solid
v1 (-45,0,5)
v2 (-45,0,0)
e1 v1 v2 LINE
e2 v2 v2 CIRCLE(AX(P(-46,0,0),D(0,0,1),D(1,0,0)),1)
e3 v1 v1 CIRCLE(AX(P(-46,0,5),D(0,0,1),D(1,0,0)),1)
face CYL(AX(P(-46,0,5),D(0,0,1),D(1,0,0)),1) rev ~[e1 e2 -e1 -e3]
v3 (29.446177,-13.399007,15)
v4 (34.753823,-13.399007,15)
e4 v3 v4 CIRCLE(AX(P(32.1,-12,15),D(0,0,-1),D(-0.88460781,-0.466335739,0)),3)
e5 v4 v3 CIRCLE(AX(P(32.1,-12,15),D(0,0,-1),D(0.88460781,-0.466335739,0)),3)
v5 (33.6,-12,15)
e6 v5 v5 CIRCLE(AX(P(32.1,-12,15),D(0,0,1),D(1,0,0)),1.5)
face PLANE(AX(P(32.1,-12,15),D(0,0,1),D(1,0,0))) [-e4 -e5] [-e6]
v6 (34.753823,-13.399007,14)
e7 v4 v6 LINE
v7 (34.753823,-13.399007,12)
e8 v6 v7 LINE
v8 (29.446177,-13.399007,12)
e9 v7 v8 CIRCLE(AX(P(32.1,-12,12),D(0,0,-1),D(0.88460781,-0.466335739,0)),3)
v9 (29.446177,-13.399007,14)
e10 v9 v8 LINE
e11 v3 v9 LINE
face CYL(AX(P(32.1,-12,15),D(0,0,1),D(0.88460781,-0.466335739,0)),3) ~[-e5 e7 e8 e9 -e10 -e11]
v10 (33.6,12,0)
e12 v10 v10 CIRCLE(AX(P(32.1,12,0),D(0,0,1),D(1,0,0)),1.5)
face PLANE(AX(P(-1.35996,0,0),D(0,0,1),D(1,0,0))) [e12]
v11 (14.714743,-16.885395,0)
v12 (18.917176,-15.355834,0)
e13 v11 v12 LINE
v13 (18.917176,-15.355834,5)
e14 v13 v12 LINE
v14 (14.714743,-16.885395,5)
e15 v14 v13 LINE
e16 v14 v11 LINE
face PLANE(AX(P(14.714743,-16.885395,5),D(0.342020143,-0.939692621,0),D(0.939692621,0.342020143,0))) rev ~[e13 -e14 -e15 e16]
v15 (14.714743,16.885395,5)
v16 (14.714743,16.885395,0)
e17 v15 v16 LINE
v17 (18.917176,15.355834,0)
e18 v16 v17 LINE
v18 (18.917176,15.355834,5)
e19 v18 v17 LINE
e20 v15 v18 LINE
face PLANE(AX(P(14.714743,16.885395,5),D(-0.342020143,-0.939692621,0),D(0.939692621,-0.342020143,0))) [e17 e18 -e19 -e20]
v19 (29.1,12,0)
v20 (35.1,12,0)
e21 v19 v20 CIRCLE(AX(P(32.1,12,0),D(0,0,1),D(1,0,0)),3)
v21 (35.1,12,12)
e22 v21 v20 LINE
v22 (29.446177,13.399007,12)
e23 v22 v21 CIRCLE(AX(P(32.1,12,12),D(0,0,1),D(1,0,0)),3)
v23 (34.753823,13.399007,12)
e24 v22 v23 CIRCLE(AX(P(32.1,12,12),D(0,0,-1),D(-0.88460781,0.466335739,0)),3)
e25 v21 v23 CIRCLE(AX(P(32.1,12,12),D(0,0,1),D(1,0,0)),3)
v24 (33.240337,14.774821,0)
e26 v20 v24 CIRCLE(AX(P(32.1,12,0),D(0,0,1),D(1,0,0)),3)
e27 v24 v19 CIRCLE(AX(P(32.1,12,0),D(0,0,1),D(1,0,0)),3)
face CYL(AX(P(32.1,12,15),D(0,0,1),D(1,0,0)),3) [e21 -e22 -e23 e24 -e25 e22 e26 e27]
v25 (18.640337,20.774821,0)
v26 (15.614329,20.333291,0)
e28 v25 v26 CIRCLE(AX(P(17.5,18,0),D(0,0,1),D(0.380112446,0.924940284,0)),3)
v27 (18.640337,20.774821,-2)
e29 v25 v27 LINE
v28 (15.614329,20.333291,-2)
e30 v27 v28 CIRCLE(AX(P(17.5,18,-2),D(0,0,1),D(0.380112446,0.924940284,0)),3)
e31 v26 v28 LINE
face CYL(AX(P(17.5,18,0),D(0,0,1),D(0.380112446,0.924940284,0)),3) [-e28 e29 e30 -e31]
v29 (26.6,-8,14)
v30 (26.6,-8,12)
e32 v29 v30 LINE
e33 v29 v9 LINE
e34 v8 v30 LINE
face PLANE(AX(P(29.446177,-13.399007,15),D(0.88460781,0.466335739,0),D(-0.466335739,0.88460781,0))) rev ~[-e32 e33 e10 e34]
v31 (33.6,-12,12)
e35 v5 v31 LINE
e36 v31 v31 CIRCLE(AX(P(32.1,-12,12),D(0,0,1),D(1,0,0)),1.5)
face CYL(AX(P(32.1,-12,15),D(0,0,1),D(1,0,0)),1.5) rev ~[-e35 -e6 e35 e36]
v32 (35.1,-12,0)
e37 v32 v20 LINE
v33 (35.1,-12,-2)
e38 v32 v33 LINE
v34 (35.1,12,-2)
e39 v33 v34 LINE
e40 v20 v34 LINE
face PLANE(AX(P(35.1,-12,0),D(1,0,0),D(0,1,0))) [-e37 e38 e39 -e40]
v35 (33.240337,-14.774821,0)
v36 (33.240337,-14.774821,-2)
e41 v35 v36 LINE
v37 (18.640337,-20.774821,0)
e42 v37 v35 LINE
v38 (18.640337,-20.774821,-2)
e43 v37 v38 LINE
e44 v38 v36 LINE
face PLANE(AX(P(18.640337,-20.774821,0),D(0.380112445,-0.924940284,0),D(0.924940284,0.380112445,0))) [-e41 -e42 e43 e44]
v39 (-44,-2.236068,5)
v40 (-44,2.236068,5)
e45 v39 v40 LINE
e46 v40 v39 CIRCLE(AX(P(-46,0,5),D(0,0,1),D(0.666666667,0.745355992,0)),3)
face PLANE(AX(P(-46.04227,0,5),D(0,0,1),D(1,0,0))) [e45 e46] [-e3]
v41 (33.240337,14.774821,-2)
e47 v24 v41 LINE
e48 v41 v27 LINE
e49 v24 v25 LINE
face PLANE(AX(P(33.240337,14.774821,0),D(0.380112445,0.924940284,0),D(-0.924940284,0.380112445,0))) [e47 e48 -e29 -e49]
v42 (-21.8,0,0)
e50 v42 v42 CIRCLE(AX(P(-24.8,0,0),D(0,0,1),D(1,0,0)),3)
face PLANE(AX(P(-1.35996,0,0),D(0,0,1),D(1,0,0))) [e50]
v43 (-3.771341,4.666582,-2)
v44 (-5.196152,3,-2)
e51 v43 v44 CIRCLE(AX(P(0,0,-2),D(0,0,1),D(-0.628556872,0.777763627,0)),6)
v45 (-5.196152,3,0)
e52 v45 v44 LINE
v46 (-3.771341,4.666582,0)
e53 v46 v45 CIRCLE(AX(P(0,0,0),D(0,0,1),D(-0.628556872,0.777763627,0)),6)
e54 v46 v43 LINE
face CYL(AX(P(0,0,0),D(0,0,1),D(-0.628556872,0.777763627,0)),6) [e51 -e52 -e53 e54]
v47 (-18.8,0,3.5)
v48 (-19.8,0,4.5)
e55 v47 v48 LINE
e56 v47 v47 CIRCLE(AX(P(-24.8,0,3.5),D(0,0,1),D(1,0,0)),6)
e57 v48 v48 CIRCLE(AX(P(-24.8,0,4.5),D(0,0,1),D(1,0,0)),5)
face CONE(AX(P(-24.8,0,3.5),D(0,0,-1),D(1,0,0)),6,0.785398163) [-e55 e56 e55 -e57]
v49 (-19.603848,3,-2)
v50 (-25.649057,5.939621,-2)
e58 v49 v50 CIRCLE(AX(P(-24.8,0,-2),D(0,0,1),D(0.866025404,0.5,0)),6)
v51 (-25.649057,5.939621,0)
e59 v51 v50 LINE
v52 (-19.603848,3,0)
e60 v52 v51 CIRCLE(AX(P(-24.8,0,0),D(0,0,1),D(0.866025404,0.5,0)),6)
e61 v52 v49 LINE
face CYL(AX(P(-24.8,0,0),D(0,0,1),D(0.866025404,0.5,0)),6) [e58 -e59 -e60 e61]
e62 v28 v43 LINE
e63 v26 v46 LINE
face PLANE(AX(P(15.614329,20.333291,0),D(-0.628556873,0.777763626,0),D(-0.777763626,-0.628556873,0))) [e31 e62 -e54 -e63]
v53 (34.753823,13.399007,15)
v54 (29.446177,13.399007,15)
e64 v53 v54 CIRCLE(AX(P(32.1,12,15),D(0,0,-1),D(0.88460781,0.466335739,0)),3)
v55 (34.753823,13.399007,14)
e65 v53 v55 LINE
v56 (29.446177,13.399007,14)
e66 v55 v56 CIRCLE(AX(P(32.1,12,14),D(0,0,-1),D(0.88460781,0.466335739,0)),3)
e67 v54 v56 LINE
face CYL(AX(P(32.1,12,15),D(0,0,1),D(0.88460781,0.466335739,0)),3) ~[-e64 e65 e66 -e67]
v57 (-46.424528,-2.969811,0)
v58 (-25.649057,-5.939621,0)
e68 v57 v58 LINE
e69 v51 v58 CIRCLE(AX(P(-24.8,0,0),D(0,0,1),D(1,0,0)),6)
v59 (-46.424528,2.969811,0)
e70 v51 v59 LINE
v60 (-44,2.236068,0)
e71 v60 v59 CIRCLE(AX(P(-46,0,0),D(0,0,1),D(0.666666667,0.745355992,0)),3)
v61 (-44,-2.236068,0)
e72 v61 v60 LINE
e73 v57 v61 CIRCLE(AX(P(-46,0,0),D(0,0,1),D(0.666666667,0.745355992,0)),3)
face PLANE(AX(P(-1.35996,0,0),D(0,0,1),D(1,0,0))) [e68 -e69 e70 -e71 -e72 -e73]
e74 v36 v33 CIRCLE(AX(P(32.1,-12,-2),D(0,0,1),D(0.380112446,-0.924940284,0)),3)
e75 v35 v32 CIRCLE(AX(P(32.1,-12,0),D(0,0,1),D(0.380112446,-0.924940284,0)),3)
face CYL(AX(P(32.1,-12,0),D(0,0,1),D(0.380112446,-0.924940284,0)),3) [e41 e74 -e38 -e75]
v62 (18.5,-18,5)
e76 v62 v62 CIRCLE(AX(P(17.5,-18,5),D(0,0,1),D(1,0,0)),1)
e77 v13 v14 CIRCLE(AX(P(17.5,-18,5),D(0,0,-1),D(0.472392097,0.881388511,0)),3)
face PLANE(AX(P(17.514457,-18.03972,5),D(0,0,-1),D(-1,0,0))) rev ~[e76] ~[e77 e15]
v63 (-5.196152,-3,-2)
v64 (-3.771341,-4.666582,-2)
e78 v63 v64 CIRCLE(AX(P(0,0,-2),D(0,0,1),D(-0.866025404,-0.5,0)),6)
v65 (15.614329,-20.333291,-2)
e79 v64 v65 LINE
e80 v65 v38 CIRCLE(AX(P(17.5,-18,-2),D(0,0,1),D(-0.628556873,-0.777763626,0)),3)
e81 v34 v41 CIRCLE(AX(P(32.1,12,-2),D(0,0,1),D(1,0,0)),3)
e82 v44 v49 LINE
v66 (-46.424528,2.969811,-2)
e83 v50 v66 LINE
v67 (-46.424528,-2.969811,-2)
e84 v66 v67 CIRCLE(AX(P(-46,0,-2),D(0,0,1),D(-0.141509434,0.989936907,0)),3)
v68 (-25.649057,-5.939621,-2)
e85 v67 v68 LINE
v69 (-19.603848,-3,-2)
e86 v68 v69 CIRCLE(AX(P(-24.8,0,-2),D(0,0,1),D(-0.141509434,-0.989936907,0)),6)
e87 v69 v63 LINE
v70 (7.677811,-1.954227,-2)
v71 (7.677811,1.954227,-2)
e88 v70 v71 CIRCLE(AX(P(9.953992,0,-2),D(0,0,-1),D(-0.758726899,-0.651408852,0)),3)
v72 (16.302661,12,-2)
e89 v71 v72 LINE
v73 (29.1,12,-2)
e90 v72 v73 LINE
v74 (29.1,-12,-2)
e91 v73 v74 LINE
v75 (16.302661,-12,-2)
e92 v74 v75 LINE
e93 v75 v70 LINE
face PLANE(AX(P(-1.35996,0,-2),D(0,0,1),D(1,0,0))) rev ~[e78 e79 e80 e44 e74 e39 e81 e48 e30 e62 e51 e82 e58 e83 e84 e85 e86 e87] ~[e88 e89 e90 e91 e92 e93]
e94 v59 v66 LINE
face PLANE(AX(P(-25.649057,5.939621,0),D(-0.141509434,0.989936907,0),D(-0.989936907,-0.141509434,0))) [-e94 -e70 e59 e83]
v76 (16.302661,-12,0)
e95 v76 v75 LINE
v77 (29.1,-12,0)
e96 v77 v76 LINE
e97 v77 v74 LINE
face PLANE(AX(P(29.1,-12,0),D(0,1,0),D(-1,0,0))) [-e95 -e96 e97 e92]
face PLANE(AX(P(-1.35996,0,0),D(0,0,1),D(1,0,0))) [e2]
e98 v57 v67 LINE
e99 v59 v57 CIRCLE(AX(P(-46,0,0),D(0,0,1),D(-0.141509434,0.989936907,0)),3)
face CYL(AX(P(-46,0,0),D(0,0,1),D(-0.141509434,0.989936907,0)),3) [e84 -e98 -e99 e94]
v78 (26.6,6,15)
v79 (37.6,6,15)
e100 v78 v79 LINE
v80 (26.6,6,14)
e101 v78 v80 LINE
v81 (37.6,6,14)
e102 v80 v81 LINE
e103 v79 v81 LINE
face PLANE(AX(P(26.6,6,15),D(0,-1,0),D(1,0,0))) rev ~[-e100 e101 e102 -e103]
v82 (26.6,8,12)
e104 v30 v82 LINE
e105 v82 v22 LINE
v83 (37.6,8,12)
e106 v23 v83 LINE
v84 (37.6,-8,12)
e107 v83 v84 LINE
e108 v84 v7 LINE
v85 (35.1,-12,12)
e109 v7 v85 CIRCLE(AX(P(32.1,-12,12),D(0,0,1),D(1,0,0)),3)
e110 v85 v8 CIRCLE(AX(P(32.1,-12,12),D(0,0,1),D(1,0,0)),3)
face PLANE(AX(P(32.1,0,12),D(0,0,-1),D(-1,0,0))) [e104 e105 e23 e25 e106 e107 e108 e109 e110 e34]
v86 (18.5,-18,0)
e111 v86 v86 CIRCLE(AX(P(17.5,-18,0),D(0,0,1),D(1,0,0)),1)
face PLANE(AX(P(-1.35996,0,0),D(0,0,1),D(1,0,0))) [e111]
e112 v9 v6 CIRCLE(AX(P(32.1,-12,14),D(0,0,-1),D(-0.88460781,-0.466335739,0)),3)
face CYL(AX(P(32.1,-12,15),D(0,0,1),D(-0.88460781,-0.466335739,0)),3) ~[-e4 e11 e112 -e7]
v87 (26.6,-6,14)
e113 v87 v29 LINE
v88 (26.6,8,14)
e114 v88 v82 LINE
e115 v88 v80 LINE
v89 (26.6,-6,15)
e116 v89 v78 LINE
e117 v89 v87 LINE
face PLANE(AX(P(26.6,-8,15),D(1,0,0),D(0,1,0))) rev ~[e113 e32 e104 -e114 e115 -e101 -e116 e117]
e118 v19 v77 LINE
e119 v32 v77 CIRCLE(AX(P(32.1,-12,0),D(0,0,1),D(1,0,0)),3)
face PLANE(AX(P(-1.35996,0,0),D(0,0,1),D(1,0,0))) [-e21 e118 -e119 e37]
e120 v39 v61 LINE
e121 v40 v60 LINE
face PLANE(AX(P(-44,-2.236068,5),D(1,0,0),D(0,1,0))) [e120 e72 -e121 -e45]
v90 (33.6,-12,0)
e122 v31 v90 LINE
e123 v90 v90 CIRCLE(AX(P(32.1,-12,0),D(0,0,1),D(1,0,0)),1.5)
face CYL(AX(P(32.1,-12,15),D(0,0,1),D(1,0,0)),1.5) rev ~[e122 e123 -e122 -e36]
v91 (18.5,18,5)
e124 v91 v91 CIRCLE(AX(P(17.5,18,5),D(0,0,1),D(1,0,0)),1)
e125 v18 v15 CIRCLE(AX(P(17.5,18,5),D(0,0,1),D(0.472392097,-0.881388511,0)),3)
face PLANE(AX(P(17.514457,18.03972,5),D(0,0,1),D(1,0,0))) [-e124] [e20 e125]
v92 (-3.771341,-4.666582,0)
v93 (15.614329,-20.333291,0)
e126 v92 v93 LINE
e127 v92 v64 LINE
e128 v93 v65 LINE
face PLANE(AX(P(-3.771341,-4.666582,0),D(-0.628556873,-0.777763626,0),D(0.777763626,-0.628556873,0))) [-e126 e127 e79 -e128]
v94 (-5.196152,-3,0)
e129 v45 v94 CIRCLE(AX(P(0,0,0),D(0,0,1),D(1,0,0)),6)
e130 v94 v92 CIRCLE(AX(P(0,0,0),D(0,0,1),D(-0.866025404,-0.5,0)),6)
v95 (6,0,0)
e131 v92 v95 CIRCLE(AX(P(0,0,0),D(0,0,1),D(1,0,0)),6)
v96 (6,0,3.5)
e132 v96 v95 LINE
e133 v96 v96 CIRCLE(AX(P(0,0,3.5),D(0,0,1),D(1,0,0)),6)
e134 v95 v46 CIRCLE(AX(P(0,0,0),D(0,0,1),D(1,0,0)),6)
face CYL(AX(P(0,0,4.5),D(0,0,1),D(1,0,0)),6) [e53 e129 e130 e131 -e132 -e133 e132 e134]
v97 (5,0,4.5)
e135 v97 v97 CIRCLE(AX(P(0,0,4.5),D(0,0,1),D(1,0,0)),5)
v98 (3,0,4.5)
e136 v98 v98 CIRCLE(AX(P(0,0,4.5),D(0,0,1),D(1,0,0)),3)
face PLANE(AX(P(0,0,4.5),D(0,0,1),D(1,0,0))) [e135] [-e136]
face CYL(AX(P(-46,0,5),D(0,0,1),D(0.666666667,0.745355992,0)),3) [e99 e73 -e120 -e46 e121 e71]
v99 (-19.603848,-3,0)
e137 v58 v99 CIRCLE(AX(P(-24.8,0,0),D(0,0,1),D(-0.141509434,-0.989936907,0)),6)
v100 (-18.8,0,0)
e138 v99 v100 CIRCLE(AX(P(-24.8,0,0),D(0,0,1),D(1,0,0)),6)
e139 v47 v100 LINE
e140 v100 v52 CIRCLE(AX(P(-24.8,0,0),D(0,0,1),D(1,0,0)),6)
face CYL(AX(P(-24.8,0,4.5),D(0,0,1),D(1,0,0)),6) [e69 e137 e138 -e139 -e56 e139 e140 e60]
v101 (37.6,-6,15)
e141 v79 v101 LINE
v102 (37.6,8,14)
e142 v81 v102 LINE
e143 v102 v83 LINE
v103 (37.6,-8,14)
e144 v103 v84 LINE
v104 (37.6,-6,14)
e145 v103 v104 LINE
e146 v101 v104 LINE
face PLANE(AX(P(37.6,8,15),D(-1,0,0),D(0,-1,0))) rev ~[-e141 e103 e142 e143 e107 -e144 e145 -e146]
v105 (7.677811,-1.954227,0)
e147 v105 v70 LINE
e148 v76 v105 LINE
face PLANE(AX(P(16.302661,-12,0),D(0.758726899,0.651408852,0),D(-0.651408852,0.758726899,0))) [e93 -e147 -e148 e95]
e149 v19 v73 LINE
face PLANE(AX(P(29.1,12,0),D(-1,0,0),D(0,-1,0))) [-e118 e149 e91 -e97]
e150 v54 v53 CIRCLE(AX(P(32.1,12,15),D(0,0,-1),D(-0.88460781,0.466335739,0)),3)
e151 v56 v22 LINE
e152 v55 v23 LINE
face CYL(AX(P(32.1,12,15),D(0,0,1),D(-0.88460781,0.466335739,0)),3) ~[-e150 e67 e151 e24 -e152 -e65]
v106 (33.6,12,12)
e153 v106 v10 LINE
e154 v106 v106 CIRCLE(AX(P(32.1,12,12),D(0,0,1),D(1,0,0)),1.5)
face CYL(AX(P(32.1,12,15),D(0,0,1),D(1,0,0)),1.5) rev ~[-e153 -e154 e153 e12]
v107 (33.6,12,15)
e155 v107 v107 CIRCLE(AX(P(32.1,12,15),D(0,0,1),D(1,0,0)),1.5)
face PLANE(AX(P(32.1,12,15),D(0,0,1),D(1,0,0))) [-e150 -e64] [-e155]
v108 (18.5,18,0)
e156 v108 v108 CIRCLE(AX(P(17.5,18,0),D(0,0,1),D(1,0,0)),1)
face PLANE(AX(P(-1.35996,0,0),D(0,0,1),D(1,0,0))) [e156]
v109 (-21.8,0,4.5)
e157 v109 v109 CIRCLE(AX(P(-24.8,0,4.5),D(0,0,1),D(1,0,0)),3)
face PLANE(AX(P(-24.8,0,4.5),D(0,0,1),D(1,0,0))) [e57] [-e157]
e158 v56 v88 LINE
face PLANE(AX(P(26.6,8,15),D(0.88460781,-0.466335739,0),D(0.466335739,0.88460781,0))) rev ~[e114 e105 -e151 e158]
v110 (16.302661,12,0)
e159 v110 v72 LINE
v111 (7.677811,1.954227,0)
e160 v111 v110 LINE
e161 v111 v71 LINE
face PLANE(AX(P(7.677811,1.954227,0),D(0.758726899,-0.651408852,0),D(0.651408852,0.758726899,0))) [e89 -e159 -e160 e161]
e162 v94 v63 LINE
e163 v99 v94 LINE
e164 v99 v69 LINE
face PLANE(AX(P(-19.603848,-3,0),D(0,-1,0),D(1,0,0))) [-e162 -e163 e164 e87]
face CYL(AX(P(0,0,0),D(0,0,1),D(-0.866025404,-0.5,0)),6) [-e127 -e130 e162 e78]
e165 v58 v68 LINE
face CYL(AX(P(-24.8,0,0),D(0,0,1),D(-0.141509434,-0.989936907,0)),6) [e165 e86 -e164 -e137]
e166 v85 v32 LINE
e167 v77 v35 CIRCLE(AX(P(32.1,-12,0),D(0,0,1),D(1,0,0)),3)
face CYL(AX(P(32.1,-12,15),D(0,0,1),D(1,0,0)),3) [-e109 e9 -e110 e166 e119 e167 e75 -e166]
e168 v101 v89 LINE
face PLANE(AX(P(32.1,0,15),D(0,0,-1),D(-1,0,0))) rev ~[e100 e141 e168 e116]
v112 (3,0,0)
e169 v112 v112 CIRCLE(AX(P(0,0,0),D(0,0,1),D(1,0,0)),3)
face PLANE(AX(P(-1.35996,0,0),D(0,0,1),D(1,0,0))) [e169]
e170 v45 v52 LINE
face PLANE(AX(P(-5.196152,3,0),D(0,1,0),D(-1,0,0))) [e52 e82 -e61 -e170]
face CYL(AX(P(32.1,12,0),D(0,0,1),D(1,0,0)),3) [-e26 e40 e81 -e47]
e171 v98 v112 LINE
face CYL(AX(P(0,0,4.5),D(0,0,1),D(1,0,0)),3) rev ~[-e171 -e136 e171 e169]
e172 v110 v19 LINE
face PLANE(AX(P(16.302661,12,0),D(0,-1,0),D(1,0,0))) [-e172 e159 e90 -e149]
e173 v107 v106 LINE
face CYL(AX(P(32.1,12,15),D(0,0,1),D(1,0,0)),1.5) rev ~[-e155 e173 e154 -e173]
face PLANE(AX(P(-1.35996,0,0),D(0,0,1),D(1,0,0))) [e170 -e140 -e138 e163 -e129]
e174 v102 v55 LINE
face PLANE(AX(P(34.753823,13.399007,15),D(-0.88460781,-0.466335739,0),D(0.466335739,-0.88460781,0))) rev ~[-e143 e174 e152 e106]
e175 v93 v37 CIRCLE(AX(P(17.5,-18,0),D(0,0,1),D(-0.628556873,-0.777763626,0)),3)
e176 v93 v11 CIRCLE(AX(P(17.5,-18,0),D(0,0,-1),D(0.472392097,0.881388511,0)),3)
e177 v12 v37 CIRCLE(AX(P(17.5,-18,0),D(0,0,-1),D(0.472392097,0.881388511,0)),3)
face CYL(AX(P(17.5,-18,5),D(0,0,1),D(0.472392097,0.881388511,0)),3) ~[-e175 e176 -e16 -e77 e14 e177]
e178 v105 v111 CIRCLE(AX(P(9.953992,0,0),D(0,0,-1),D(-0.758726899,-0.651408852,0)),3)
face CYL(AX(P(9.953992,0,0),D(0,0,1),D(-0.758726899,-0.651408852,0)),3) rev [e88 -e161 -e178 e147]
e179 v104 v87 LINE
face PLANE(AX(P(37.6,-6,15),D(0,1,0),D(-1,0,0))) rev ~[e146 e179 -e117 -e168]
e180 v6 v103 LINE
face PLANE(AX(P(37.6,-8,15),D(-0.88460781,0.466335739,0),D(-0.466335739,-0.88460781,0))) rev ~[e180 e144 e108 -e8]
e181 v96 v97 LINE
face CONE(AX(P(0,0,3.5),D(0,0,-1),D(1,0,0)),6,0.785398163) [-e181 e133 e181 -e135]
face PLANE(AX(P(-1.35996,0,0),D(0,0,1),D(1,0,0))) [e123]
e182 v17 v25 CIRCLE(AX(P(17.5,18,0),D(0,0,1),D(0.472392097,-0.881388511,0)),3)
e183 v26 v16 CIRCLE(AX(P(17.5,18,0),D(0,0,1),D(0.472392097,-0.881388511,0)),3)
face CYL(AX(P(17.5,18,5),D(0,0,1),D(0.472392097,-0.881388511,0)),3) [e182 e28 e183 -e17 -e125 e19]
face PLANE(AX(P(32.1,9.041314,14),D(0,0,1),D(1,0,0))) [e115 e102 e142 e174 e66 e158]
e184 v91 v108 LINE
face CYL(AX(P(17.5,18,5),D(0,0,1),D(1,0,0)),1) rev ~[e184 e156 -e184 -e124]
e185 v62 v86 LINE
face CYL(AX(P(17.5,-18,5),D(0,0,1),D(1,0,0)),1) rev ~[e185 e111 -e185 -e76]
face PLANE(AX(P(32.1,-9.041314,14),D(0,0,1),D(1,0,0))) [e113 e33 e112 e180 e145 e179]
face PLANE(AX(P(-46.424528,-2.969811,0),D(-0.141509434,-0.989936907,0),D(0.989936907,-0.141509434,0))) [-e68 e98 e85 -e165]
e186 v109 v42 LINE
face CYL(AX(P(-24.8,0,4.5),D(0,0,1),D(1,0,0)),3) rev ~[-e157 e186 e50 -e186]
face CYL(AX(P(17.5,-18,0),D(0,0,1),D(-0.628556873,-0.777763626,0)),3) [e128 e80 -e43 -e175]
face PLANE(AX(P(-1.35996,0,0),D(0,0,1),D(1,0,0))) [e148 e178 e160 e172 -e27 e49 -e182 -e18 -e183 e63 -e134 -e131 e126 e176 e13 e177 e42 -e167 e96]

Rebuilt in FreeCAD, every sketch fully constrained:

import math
import FreeCAD as App
import Part
import Sketcher
from FreeCAD import Vector
Q = App.Units.Quantity


def edges_at(feature, points):
    """Names of the edges that pass closest to the given points."""
    edges = feature.Shape.Edges
    near = lambda p: min(range(len(edges)), key=lambda i: edges[i].distToShape(Part.Vertex(*p))[0])
    return sorted({f"Edge{near(p) + 1}" for p in points})

doc = App.newDocument("Part")
params = doc.addObject("Spreadsheet::Sheet", "Params")
for row, (alias, value) in enumerate([
    ("sketch1_radius", "6 mm"),
    ("sketch1_radius2", "3 mm"),
    ("sketch1_height", "24 mm"),
    ("pad1_length", "2 mm"),
    ("sketch2_diameter", "12 mm"),
    ("sketch2_diameter2", "6 mm"),
    ("pad2_length", "4.5 mm"),
    ("chamfer_size", "1 mm"),
    ("sketch3_diameter", "2 mm"),
    ("sketch3_radius", "3 mm"),
    ("pad3_length", "5 mm"),
    ("sketch4_diameter", "6 mm"),
    ("sketch4_diameter2", "3 mm"),
    ("pad4_length", "15 mm"),
    ("sketch5_diameter", "3 mm"),
    ("sketch5_radius", "3 mm"),
    ("sketch5_height", "16 mm"),
    ("pad5_length", "3 mm"),
    ("sketch6_radius", "3 mm"),
    ("sketch6_width", "11 mm"),
    ("sketch6_height", "2 mm"),
    ("pocket1_length", "1 mm"),
], start=1):
    params.set(f"A{row}", alias)
    params.set(f"B{row}", "=" + value)
    params.setAlias(f"B{row}", alias)

body = doc.addObject("PartDesign::Body", "Body")

# Sketch on XY plane
sketch1 = body.newObject("Sketcher::SketchObject", "Sketch")
sketch1.AttachmentSupport = (doc.getObject("XY_Plane"), [""])
sketch1.MapMode = "FlatFace"
sketch1.addGeometry(Part.LineSegment(Vector(-5.2, 3, 0), Vector(-19.6, 3, 0)), False)
sketch1.addGeometry(Part.ArcOfCircle(Part.Circle(Vector(-24.8, 0, 0), Vector(0, 0, 1), 6), math.radians(30), math.radians(98)), False)
sketch1.addGeometry(Part.LineSegment(Vector(-25.6, 5.9, 0), Vector(-46.4, 3, 0)), False)
sketch1.addGeometry(Part.ArcOfCircle(Part.Circle(Vector(-46, 0, 0), Vector(0, 0, 1), 3), math.radians(98), math.radians(262)), False)
sketch1.addGeometry(Part.LineSegment(Vector(-46.4, -3, 0), Vector(-25.6, -5.9, 0)), False)
sketch1.addGeometry(Part.ArcOfCircle(Part.Circle(Vector(-24.8, 0, 0), Vector(0, 0, 1), 6), math.radians(-98), math.radians(-30)), False)
sketch1.addGeometry(Part.LineSegment(Vector(-19.6, -3, 0), Vector(-5.2, -3, 0)), False)
sketch1.addGeometry(Part.ArcOfCircle(Part.Circle(Vector(0, 0, 0), Vector(0, 0, 1), 6), math.radians(-150), math.radians(-129)), False)
sketch1.addGeometry(Part.LineSegment(Vector(-3.8, -4.7, 0), Vector(15.6, -20.3, 0)), False)
sketch1.addGeometry(Part.ArcOfCircle(Part.Circle(Vector(17.5, -18, 0), Vector(0, 0, 1), 3), math.radians(-129), math.radians(-68)), False)
sketch1.addGeometry(Part.LineSegment(Vector(18.6, -20.8, 0), Vector(33.2, -14.8, 0)), False)
sketch1.addGeometry(Part.ArcOfCircle(Part.Circle(Vector(32.1, -12, 0), Vector(0, 0, 1), 3), math.radians(-68), math.radians(0)), False)
sketch1.addGeometry(Part.LineSegment(Vector(35.1, -12, 0), Vector(35.1, 12, 0)), False)
sketch1.addGeometry(Part.ArcOfCircle(Part.Circle(Vector(32.1, 12, 0), Vector(0, 0, 1), 3), math.radians(0), math.radians(68)), False)
sketch1.addGeometry(Part.LineSegment(Vector(33.2, 14.8, 0), Vector(18.6, 20.8, 0)), False)
sketch1.addGeometry(Part.ArcOfCircle(Part.Circle(Vector(17.5, 18, 0), Vector(0, 0, 1), 3), math.radians(68), math.radians(129)), False)
sketch1.addGeometry(Part.LineSegment(Vector(15.6, 20.3, 0), Vector(-3.8, 4.7, 0)), False)
sketch1.addGeometry(Part.ArcOfCircle(Part.Circle(Vector(0, 0, 0), Vector(0, 0, 1), 6), math.radians(129), math.radians(150)), False)
sketch1.addGeometry(Part.ArcOfCircle(Part.Circle(Vector(10, 0, 0), Vector(0, 0, 1), 3), math.radians(139), math.radians(221)), False)
sketch1.addGeometry(Part.LineSegment(Vector(7.7, 2, 0), Vector(16.3, 12, 0)), False)
sketch1.addGeometry(Part.LineSegment(Vector(16.3, 12, 0), Vector(29.1, 12, 0)), False)
sketch1.addGeometry(Part.LineSegment(Vector(29.1, 12, 0), Vector(29.1, -12, 0)), False)
sketch1.addGeometry(Part.LineSegment(Vector(29.1, -12, 0), Vector(16.3, -12, 0)), False)
sketch1.addGeometry(Part.LineSegment(Vector(16.3, -12, 0), Vector(7.7, -2, 0)), False)
sketch1.addConstraint(Sketcher.Constraint("Coincident", 0, 2, 1, 1))
sketch1.addConstraint(Sketcher.Constraint("Tangent", 1, 2, 2, 1))
sketch1.addConstraint(Sketcher.Constraint("Tangent", 2, 2, 3, 1))
sketch1.addConstraint(Sketcher.Constraint("Tangent", 3, 2, 4, 1))
sketch1.addConstraint(Sketcher.Constraint("Tangent", 4, 2, 5, 1))
sketch1.addConstraint(Sketcher.Constraint("Coincident", 5, 2, 6, 1))
sketch1.addConstraint(Sketcher.Constraint("Coincident", 6, 2, 7, 1))
sketch1.addConstraint(Sketcher.Constraint("Tangent", 7, 2, 8, 1))
sketch1.addConstraint(Sketcher.Constraint("Tangent", 8, 2, 9, 1))
sketch1.addConstraint(Sketcher.Constraint("Tangent", 9, 2, 10, 1))
sketch1.addConstraint(Sketcher.Constraint("Tangent", 10, 2, 11, 1))
sketch1.addConstraint(Sketcher.Constraint("Tangent", 11, 2, 12, 1))
sketch1.addConstraint(Sketcher.Constraint("Tangent", 12, 2, 13, 1))
sketch1.addConstraint(Sketcher.Constraint("Tangent", 13, 2, 14, 1))
sketch1.addConstraint(Sketcher.Constraint("Tangent", 14, 2, 15, 1))
sketch1.addConstraint(Sketcher.Constraint("Tangent", 15, 2, 16, 1))
sketch1.addConstraint(Sketcher.Constraint("Tangent", 16, 2, 17, 1))
sketch1.addConstraint(Sketcher.Constraint("Coincident", 17, 2, 0, 1))
sketch1.addConstraint(Sketcher.Constraint("Tangent", 18, 1, 19, 1))
sketch1.addConstraint(Sketcher.Constraint("Coincident", 19, 2, 20, 1))
sketch1.addConstraint(Sketcher.Constraint("Coincident", 20, 2, 21, 1))
sketch1.addConstraint(Sketcher.Constraint("Coincident", 21, 2, 22, 1))
sketch1.addConstraint(Sketcher.Constraint("Coincident", 22, 2, 23, 1))
sketch1.addConstraint(Sketcher.Constraint("Tangent", 23, 2, 18, 2))
sketch1.addConstraint(Sketcher.Constraint("Horizontal", 0))
sketch1.addConstraint(Sketcher.Constraint("Horizontal", 6))
sketch1.addConstraint(Sketcher.Constraint("Vertical", 12))
sketch1.addConstraint(Sketcher.Constraint("Horizontal", 20))
sketch1.addConstraint(Sketcher.Constraint("Vertical", 21))
sketch1.addConstraint(Sketcher.Constraint("Horizontal", 22))
sketch1.addConstraint(Sketcher.Constraint("Coincident", 7, 3, -1, 1))
sketch1.addConstraint(Sketcher.Constraint("Coincident", 17, 3, -1, 1))
sketch1.addConstraint(Sketcher.Constraint("Coincident", 5, 3, 1, 3))
sketch1.addConstraint(Sketcher.Constraint("Equal", 1, 5))
sketch1.addConstraint(Sketcher.Constraint("Equal", 5, 7))
sketch1.addConstraint(Sketcher.Constraint("Equal", 3, 9))
sketch1.addConstraint(Sketcher.Constraint("Equal", 9, 11))
sketch1.addConstraint(Sketcher.Constraint("Equal", 11, 13))
sketch1.addConstraint(Sketcher.Constraint("Equal", 13, 15))
sketch1.addConstraint(Sketcher.Constraint("Equal", 7, 17))
sketch1.addConstraint(Sketcher.Constraint("Equal", 15, 18))
sketch1.addConstraint(Sketcher.Constraint("Symmetric", 9, 3, 15, 3, -1))
sketch1.addConstraint(Sketcher.Constraint("Symmetric", 2, 2, 3, 2, -1))
sketch1.addConstraint(Sketcher.Constraint("Symmetric", 19, 2, 22, 2, -1))
sketch1.addConstraint(Sketcher.Constraint("PointOnObject", 18, 3, -1))
sketch1.addConstraint(Sketcher.Constraint("Horizontal", 12, 2, 19, 2))
sketch1.addConstraint(Sketcher.Constraint("Horizontal", 11, 2, 21, 2))
sketch1.addConstraint(Sketcher.Constraint("Vertical", 0, 2, 5, 2))
sketch1.addConstraint(Sketcher.Constraint("Radius", 1, Q("6 mm")))
sketch1.addConstraint(Sketcher.Constraint("Radius", 3, Q("3 mm")))
sketch1.addConstraint(Sketcher.Constraint("DistanceY", 12, 1, 12, 2, Q("24 mm")))
sketch1.addConstraint(Sketcher.Constraint("DistanceX", 3, 3, -1, 1, Q("46 mm")))
sketch1.addConstraint(Sketcher.Constraint("DistanceY", 9, 3, -1, 1, Q("18 mm")))
sketch1.addConstraint(Sketcher.Constraint("DistanceY", -1, 1, 0, 2, Q("3 mm")))
sketch1.addConstraint(Sketcher.Constraint("DistanceX", 20, 2, 13, 3, Q("3 mm")))
sketch1.addConstraint(Sketcher.Constraint("DistanceX", 1, 3, -1, 1, Q("24.8 mm")))
sketch1.addConstraint(Sketcher.Constraint("DistanceX", -1, 1, 9, 3, Q("17.5 mm")))
sketch1.addConstraint(Sketcher.Constraint("DistanceX", -1, 1, 11, 3, Q("32.1 mm")))
sketch1.addConstraint(Sketcher.Constraint("DistanceX", 20, 1, 20, 2, Q("12.797339 mm")))
sketch1.addConstraint(Sketcher.Constraint("DistanceX", -1, 1, 18, 3, Q("9.953992 mm")))
sketch1.setExpression("Constraints[48]", "Params.sketch1_radius")
sketch1.setExpression("Constraints[49]", "Params.sketch1_radius2")
sketch1.setExpression("Constraints[50]", "Params.sketch1_height")
pad1 = body.newObject("PartDesign::Pad", "Pad")
pad1.Profile = sketch1
pad1.setExpression("Length", "Params.pad1_length")
pad1.Reversed = True

# Sketch on XY plane
sketch2 = body.newObject("Sketcher::SketchObject", "Sketch001")
sketch2.AttachmentSupport = (doc.getObject("XY_Plane"), [""])
sketch2.MapMode = "FlatFace"
sketch2.AttachmentOffset = App.Placement(Vector(0, 0, 4.5), App.Rotation())
sketch2.addGeometry(Part.Circle(Vector(-24.8, 0, 0), Vector(0, 0, 1), 6), False)
sketch2.addGeometry(Part.Circle(Vector(-24.8, 0, 0), Vector(0, 0, 1), 3), False)
sketch2.addGeometry(Part.Circle(Vector(0, 0, 0), Vector(0, 0, 1), 6), False)
sketch2.addGeometry(Part.Circle(Vector(0, 0, 0), Vector(0, 0, 1), 3), False)
sketch2.addConstraint(Sketcher.Constraint("Coincident", 2, 3, -1, 1))
sketch2.addConstraint(Sketcher.Constraint("Coincident", 3, 3, -1, 1))
sketch2.addConstraint(Sketcher.Constraint("Coincident", 1, 3, 0, 3))
sketch2.addConstraint(Sketcher.Constraint("Equal", 0, 2))
sketch2.addConstraint(Sketcher.Constraint("Equal", 1, 3))
sketch2.addConstraint(Sketcher.Constraint("PointOnObject", 0, 3, -1))
sketch2.addConstraint(Sketcher.Constraint("Diameter", 0, Q("12 mm")))
sketch2.addConstraint(Sketcher.Constraint("Diameter", 1, Q("6 mm")))
sketch2.addConstraint(Sketcher.Constraint("DistanceX", 0, 3, -1, 1, Q("24.8 mm")))
sketch2.setExpression("Constraints[6]", "Params.sketch2_diameter")
sketch2.setExpression("Constraints[7]", "Params.sketch2_diameter2")
pad2 = body.newObject("PartDesign::Pad", "Pad001")
pad2.Profile = sketch2
pad2.setExpression("Length", "Params.pad2_length")
pad2.Reversed = True
doc.recompute()

chamfer = body.newObject("PartDesign::Chamfer", "Chamfer")
chamfer.Base = (pad2, edges_at(pad2, [(-30.8, 0, 4.5), (-6, 0, 4.5)]))
chamfer.setExpression("Size", "Params.chamfer_size")

# Sketch on XY plane
sketch3 = body.newObject("Sketcher::SketchObject", "Sketch002")
sketch3.AttachmentSupport = (doc.getObject("XY_Plane"), [""])
sketch3.MapMode = "FlatFace"
sketch3.AttachmentOffset = App.Placement(Vector(0, 0, 5), App.Rotation())
sketch3.addGeometry(Part.LineSegment(Vector(-44, -2.2, 0), Vector(-44, 2.2, 0)), False)
sketch3.addGeometry(Part.ArcOfCircle(Part.Circle(Vector(-46, 0, 0), Vector(0, 0, 1), 3), math.radians(48), math.radians(312)), False)
sketch3.addGeometry(Part.Circle(Vector(-46, 0, 0), Vector(0, 0, 1), 1), False)
sketch3.addGeometry(Part.LineSegment(Vector(18.9, -15.4, 0), Vector(14.7, -16.9, 0)), False)
sketch3.addGeometry(Part.ArcOfCircle(Part.Circle(Vector(17.5, -18, 0), Vector(0, 0, 1), 3), math.radians(158), math.radians(422)), False)
sketch3.addGeometry(Part.Circle(Vector(17.5, -18, 0), Vector(0, 0, 1), 1), False)
sketch3.addGeometry(Part.LineSegment(Vector(14.7, 16.9, 0), Vector(18.9, 15.4, 0)), False)
sketch3.addGeometry(Part.ArcOfCircle(Part.Circle(Vector(17.5, 18, 0), Vector(0, 0, 1), 3), math.radians(-62), math.radians(202)), False)
sketch3.addGeometry(Part.Circle(Vector(17.5, 18, 0), Vector(0, 0, 1), 1), False)
sketch3.addConstraint(Sketcher.Constraint("Coincident", 0, 1, 1, 2))
sketch3.addConstraint(Sketcher.Constraint("Coincident", 1, 1, 0, 2))
sketch3.addConstraint(Sketcher.Constraint("Coincident", 3, 1, 4, 2))
sketch3.addConstraint(Sketcher.Constraint("Coincident", 4, 1, 3, 2))
sketch3.addConstraint(Sketcher.Constraint("Coincident", 6, 1, 7, 2))
sketch3.addConstraint(Sketcher.Constraint("Coincident", 7, 1, 6, 2))
sketch3.addConstraint(Sketcher.Constraint("Vertical", 0))
sketch3.addConstraint(Sketcher.Constraint("Coincident", 2, 3, 1, 3))
sketch3.addConstraint(Sketcher.Constraint("Coincident", 5, 3, 4, 3))
sketch3.addConstraint(Sketcher.Constraint("Coincident", 8, 3, 7, 3))
sketch3.addConstraint(Sketcher.Constraint("Equal", 1, 4))
sketch3.addConstraint(Sketcher.Constraint("Equal", 2, 5))
sketch3.addConstraint(Sketcher.Constraint("Equal", 4, 7))
sketch3.addConstraint(Sketcher.Constraint("Equal", 5, 8))
sketch3.addConstraint(Sketcher.Constraint("Symmetric", 4, 3, 7, 3, -1))
sketch3.addConstraint(Sketcher.Constraint("PointOnObject", 1, 3, -1))
sketch3.addConstraint(Sketcher.Constraint("Vertical", 4, 1, 6, 1))
sketch3.addConstraint(Sketcher.Constraint("Vertical", 3, 1, 7, 1))
sketch3.addConstraint(Sketcher.Constraint("Diameter", 2, Q("2 mm")))
sketch3.addConstraint(Sketcher.Constraint("Radius", 1, Q("3 mm")))
sketch3.addConstraint(Sketcher.Constraint("Angle", 3, Q("-160 deg")))
sketch3.addConstraint(Sketcher.Constraint("DistanceX", 1, 3, -1, 1, Q("46 mm")))
sketch3.addConstraint(Sketcher.Constraint("DistanceY", 4, 3, -1, 1, Q("18 mm")))
sketch3.addConstraint(Sketcher.Constraint("DistanceX", 0, 1, -1, 1, Q("44 mm")))
sketch3.addConstraint(Sketcher.Constraint("DistanceX", -1, 1, 4, 3, Q("17.5 mm")))
sketch3.addConstraint(Sketcher.Constraint("DistanceY", 4, 1, 3, 1, Q("1.529561 mm")))
sketch3.setExpression("Constraints[18]", "Params.sketch3_diameter")
sketch3.setExpression("Constraints[19]", "Params.sketch3_radius")
pad3 = body.newObject("PartDesign::Pad", "Pad002")
pad3.Profile = sketch3
pad3.setExpression("Length", "Params.pad3_length")
pad3.Reversed = True

# Sketch on XY plane
sketch4 = body.newObject("Sketcher::SketchObject", "Sketch003")
sketch4.AttachmentSupport = (doc.getObject("XY_Plane"), [""])
sketch4.MapMode = "FlatFace"
sketch4.AttachmentOffset = App.Placement(Vector(0, 0, 15), App.Rotation())
sketch4.addGeometry(Part.Circle(Vector(32.1, -12, 0), Vector(0, 0, 1), 3), False)
sketch4.addGeometry(Part.Circle(Vector(32.1, -12, 0), Vector(0, 0, 1), 1.5), False)
sketch4.addGeometry(Part.Circle(Vector(32.1, 12, 0), Vector(0, 0, 1), 3), False)
sketch4.addGeometry(Part.Circle(Vector(32.1, 12, 0), Vector(0, 0, 1), 1.5), False)
sketch4.addConstraint(Sketcher.Constraint("Coincident", 1, 3, 0, 3))
sketch4.addConstraint(Sketcher.Constraint("Coincident", 3, 3, 2, 3))
sketch4.addConstraint(Sketcher.Constraint("Equal", 0, 2))
sketch4.addConstraint(Sketcher.Constraint("Equal", 1, 3))
sketch4.addConstraint(Sketcher.Constraint("Symmetric", 0, 3, 2, 3, -1))
sketch4.addConstraint(Sketcher.Constraint("Diameter", 0, Q("6 mm")))
sketch4.addConstraint(Sketcher.Constraint("Diameter", 1, Q("3 mm")))
sketch4.addConstraint(Sketcher.Constraint("DistanceY", 0, 3, -1, 1, Q("12 mm")))
sketch4.addConstraint(Sketcher.Constraint("DistanceX", -1, 1, 0, 3, Q("32.1 mm")))
sketch4.setExpression("Constraints[5]", "Params.sketch4_diameter")
sketch4.setExpression("Constraints[6]", "Params.sketch4_diameter2")
pad4 = body.newObject("PartDesign::Pad", "Pad003")
pad4.Profile = sketch4
pad4.setExpression("Length", "Params.pad4_length")
pad4.Reversed = True

# Sketch on XY plane
sketch5 = body.newObject("Sketcher::SketchObject", "Sketch004")
sketch5.AttachmentSupport = (doc.getObject("XY_Plane"), [""])
sketch5.MapMode = "FlatFace"
sketch5.AttachmentOffset = App.Placement(Vector(0, 0, 15), App.Rotation())
sketch5.addGeometry(Part.LineSegment(Vector(26.6, -8, 0), Vector(29.4, -13.4, 0)), False)
sketch5.addGeometry(Part.ArcOfCircle(Part.Circle(Vector(32.1, -12, 0), Vector(0, 0, 1), 3), math.radians(-152), math.radians(-28)), False)
sketch5.addGeometry(Part.LineSegment(Vector(34.8, -13.4, 0), Vector(37.6, -8, 0)), False)
sketch5.addGeometry(Part.LineSegment(Vector(37.6, -8, 0), Vector(37.6, 8, 0)), False)
sketch5.addGeometry(Part.LineSegment(Vector(37.6, 8, 0), Vector(34.8, 13.4, 0)), False)
sketch5.addGeometry(Part.ArcOfCircle(Part.Circle(Vector(32.1, 12, 0), Vector(0, 0, 1), 3), math.radians(28), math.radians(152)), False)
sketch5.addGeometry(Part.LineSegment(Vector(29.4, 13.4, 0), Vector(26.6, 8, 0)), False)
sketch5.addGeometry(Part.LineSegment(Vector(26.6, 8, 0), Vector(26.6, -8, 0)), False)
sketch5.addGeometry(Part.Circle(Vector(32.1, -12, 0), Vector(0, 0, 1), 1.5), False)
sketch5.addGeometry(Part.Circle(Vector(32.1, 12, 0), Vector(0, 0, 1), 1.5), False)
sketch5.addConstraint(Sketcher.Constraint("Tangent", 0, 2, 1, 1))
sketch5.addConstraint(Sketcher.Constraint("Tangent", 1, 2, 2, 1))
sketch5.addConstraint(Sketcher.Constraint("Coincident", 2, 2, 3, 1))
sketch5.addConstraint(Sketcher.Constraint("Coincident", 3, 2, 4, 1))
sketch5.addConstraint(Sketcher.Constraint("Tangent", 4, 2, 5, 1))
sketch5.addConstraint(Sketcher.Constraint("Tangent", 5, 2, 6, 1))
sketch5.addConstraint(Sketcher.Constraint("Coincident", 6, 2, 7, 1))
sketch5.addConstraint(Sketcher.Constraint("Coincident", 7, 2, 0, 1))
sketch5.addConstraint(Sketcher.Constraint("Vertical", 3))
sketch5.addConstraint(Sketcher.Constraint("Vertical", 7))
sketch5.addConstraint(Sketcher.Constraint("Coincident", 8, 3, 1, 3))
sketch5.addConstraint(Sketcher.Constraint("Coincident", 9, 3, 5, 3))
sketch5.addConstraint(Sketcher.Constraint("Equal", 1, 5))
sketch5.addConstraint(Sketcher.Constraint("Equal", 8, 9))
sketch5.addConstraint(Sketcher.Constraint("Symmetric", 1, 3, 5, 3, -1))
sketch5.addConstraint(Sketcher.Constraint("Parallel", 0, 4))
sketch5.addConstraint(Sketcher.Constraint("Parallel", 2, 6))
sketch5.addConstraint(Sketcher.Constraint("Horizontal", 0, 2, 1, 2))
sketch5.addConstraint(Sketcher.Constraint("Horizontal", 3, 2, 6, 2))
sketch5.addConstraint(Sketcher.Constraint("Diameter", 8, Q("3 mm")))
sketch5.addConstraint(Sketcher.Constraint("Radius", 1, Q("3 mm")))
sketch5.addConstraint(Sketcher.Constraint("DistanceY", 3, 1, 3, 2, Q("16 mm")))
sketch5.addConstraint(Sketcher.Constraint("DistanceY", 1, 3, -1, 1, Q("12 mm")))
sketch5.addConstraint(Sketcher.Constraint("DistanceX", 6, 2, 3, 2, Q("11 mm")))
sketch5.addConstraint(Sketcher.Constraint("DistanceX", -1, 1, 1, 3, Q("32.1 mm")))
sketch5.setExpression("Constraints[19]", "Params.sketch5_diameter")
sketch5.setExpression("Constraints[20]", "Params.sketch5_radius")
sketch5.setExpression("Constraints[21]", "Params.sketch5_height")
pad5 = body.newObject("PartDesign::Pad", "Pad004")
pad5.Profile = sketch5
pad5.setExpression("Length", "Params.pad5_length")
pad5.Reversed = True

# Sketch on XY plane
sketch6 = body.newObject("Sketcher::SketchObject", "Sketch005")
sketch6.AttachmentSupport = (doc.getObject("XY_Plane"), [""])
sketch6.MapMode = "FlatFace"
sketch6.AttachmentOffset = App.Placement(Vector(0, 0, 15), App.Rotation())
sketch6.addGeometry(Part.LineSegment(Vector(29.4, 13.4, 0), Vector(26.6, 8, 0)), False)
sketch6.addGeometry(Part.LineSegment(Vector(26.6, 8, 0), Vector(26.6, 6, 0)), False)
sketch6.addGeometry(Part.LineSegment(Vector(26.6, 6, 0), Vector(37.6, 6, 0)), False)
sketch6.addGeometry(Part.LineSegment(Vector(37.6, 6, 0), Vector(37.6, 8, 0)), False)
sketch6.addGeometry(Part.LineSegment(Vector(37.6, 8, 0), Vector(34.8, 13.4, 0)), False)
sketch6.addGeometry(Part.ArcOfCircle(Part.Circle(Vector(32.1, 12, 0), Vector(0, 0, 1), 3), math.radians(152), math.radians(388)), False)
sketch6.addGeometry(Part.LineSegment(Vector(26.6, -8, 0), Vector(29.4, -13.4, 0)), False)
sketch6.addGeometry(Part.ArcOfCircle(Part.Circle(Vector(32.1, -12, 0), Vector(0, 0, 1), 3), math.radians(-28), math.radians(208)), False)
sketch6.addGeometry(Part.LineSegment(Vector(34.8, -13.4, 0), Vector(37.6, -8, 0)), False)
sketch6.addGeometry(Part.LineSegment(Vector(37.6, -8, 0), Vector(37.6, -6, 0)), False)
sketch6.addGeometry(Part.LineSegment(Vector(37.6, -6, 0), Vector(26.6, -6, 0)), False)
sketch6.addGeometry(Part.LineSegment(Vector(26.6, -6, 0), Vector(26.6, -8, 0)), False)
sketch6.addConstraint(Sketcher.Constraint("Coincident", 0, 2, 1, 1))
sketch6.addConstraint(Sketcher.Constraint("Coincident", 1, 2, 2, 1))
sketch6.addConstraint(Sketcher.Constraint("Coincident", 2, 2, 3, 1))
sketch6.addConstraint(Sketcher.Constraint("Coincident", 3, 2, 4, 1))
sketch6.addConstraint(Sketcher.Constraint("Tangent", 4, 2, 5, 2))
sketch6.addConstraint(Sketcher.Constraint("Tangent", 5, 1, 0, 1))
sketch6.addConstraint(Sketcher.Constraint("Tangent", 6, 2, 7, 2))
sketch6.addConstraint(Sketcher.Constraint("Tangent", 7, 1, 8, 1))
sketch6.addConstraint(Sketcher.Constraint("Coincident", 8, 2, 9, 1))
sketch6.addConstraint(Sketcher.Constraint("Coincident", 9, 2, 10, 1))
sketch6.addConstraint(Sketcher.Constraint("Coincident", 10, 2, 11, 1))
sketch6.addConstraint(Sketcher.Constraint("Coincident", 11, 2, 6, 1))
sketch6.addConstraint(Sketcher.Constraint("Vertical", 1))
sketch6.addConstraint(Sketcher.Constraint("Horizontal", 2))
sketch6.addConstraint(Sketcher.Constraint("Vertical", 3))
sketch6.addConstraint(Sketcher.Constraint("Vertical", 9))
sketch6.addConstraint(Sketcher.Constraint("Horizontal", 10))
sketch6.addConstraint(Sketcher.Constraint("Vertical", 11))
sketch6.addConstraint(Sketcher.Constraint("Equal", 5, 7))
sketch6.addConstraint(Sketcher.Constraint("Symmetric", 5, 3, 7, 3, -1))
sketch6.addConstraint(Sketcher.Constraint("Symmetric", 3, 2, 8, 2, -1))
sketch6.addConstraint(Sketcher.Constraint("Symmetric", 1, 2, 10, 2, -1))
sketch6.addConstraint(Sketcher.Constraint("Parallel", 4, 6))
sketch6.addConstraint(Sketcher.Constraint("Parallel", 0, 8))
sketch6.addConstraint(Sketcher.Constraint("Horizontal", 0, 2, 3, 2))
sketch6.addConstraint(Sketcher.Constraint("Radius", 5, Q("3 mm")))
sketch6.addConstraint(Sketcher.Constraint("DistanceX", 2, 1, 2, 2, Q("11 mm")))
sketch6.addConstraint(Sketcher.Constraint("DistanceY", 1, 2, 1, 1, Q("2 mm")))
sketch6.addConstraint(Sketcher.Constraint("DistanceY", -1, 1, 5, 3, Q("12 mm")))
sketch6.addConstraint(Sketcher.Constraint("DistanceY", -1, 1, 0, 2, Q("8 mm")))
sketch6.addConstraint(Sketcher.Constraint("DistanceX", -1, 1, 5, 3, Q("32.1 mm")))
sketch6.setExpression("Constraints[25]", "Params.sketch6_radius")
sketch6.setExpression("Constraints[26]", "Params.sketch6_width")
sketch6.setExpression("Constraints[27]", "Params.sketch6_height")
pocket1 = body.newObject("PartDesign::Pocket", "Pocket")
pocket1.Profile = sketch6
pocket1.setExpression("Length", "Params.pocket1_length")

doc.recompute()
